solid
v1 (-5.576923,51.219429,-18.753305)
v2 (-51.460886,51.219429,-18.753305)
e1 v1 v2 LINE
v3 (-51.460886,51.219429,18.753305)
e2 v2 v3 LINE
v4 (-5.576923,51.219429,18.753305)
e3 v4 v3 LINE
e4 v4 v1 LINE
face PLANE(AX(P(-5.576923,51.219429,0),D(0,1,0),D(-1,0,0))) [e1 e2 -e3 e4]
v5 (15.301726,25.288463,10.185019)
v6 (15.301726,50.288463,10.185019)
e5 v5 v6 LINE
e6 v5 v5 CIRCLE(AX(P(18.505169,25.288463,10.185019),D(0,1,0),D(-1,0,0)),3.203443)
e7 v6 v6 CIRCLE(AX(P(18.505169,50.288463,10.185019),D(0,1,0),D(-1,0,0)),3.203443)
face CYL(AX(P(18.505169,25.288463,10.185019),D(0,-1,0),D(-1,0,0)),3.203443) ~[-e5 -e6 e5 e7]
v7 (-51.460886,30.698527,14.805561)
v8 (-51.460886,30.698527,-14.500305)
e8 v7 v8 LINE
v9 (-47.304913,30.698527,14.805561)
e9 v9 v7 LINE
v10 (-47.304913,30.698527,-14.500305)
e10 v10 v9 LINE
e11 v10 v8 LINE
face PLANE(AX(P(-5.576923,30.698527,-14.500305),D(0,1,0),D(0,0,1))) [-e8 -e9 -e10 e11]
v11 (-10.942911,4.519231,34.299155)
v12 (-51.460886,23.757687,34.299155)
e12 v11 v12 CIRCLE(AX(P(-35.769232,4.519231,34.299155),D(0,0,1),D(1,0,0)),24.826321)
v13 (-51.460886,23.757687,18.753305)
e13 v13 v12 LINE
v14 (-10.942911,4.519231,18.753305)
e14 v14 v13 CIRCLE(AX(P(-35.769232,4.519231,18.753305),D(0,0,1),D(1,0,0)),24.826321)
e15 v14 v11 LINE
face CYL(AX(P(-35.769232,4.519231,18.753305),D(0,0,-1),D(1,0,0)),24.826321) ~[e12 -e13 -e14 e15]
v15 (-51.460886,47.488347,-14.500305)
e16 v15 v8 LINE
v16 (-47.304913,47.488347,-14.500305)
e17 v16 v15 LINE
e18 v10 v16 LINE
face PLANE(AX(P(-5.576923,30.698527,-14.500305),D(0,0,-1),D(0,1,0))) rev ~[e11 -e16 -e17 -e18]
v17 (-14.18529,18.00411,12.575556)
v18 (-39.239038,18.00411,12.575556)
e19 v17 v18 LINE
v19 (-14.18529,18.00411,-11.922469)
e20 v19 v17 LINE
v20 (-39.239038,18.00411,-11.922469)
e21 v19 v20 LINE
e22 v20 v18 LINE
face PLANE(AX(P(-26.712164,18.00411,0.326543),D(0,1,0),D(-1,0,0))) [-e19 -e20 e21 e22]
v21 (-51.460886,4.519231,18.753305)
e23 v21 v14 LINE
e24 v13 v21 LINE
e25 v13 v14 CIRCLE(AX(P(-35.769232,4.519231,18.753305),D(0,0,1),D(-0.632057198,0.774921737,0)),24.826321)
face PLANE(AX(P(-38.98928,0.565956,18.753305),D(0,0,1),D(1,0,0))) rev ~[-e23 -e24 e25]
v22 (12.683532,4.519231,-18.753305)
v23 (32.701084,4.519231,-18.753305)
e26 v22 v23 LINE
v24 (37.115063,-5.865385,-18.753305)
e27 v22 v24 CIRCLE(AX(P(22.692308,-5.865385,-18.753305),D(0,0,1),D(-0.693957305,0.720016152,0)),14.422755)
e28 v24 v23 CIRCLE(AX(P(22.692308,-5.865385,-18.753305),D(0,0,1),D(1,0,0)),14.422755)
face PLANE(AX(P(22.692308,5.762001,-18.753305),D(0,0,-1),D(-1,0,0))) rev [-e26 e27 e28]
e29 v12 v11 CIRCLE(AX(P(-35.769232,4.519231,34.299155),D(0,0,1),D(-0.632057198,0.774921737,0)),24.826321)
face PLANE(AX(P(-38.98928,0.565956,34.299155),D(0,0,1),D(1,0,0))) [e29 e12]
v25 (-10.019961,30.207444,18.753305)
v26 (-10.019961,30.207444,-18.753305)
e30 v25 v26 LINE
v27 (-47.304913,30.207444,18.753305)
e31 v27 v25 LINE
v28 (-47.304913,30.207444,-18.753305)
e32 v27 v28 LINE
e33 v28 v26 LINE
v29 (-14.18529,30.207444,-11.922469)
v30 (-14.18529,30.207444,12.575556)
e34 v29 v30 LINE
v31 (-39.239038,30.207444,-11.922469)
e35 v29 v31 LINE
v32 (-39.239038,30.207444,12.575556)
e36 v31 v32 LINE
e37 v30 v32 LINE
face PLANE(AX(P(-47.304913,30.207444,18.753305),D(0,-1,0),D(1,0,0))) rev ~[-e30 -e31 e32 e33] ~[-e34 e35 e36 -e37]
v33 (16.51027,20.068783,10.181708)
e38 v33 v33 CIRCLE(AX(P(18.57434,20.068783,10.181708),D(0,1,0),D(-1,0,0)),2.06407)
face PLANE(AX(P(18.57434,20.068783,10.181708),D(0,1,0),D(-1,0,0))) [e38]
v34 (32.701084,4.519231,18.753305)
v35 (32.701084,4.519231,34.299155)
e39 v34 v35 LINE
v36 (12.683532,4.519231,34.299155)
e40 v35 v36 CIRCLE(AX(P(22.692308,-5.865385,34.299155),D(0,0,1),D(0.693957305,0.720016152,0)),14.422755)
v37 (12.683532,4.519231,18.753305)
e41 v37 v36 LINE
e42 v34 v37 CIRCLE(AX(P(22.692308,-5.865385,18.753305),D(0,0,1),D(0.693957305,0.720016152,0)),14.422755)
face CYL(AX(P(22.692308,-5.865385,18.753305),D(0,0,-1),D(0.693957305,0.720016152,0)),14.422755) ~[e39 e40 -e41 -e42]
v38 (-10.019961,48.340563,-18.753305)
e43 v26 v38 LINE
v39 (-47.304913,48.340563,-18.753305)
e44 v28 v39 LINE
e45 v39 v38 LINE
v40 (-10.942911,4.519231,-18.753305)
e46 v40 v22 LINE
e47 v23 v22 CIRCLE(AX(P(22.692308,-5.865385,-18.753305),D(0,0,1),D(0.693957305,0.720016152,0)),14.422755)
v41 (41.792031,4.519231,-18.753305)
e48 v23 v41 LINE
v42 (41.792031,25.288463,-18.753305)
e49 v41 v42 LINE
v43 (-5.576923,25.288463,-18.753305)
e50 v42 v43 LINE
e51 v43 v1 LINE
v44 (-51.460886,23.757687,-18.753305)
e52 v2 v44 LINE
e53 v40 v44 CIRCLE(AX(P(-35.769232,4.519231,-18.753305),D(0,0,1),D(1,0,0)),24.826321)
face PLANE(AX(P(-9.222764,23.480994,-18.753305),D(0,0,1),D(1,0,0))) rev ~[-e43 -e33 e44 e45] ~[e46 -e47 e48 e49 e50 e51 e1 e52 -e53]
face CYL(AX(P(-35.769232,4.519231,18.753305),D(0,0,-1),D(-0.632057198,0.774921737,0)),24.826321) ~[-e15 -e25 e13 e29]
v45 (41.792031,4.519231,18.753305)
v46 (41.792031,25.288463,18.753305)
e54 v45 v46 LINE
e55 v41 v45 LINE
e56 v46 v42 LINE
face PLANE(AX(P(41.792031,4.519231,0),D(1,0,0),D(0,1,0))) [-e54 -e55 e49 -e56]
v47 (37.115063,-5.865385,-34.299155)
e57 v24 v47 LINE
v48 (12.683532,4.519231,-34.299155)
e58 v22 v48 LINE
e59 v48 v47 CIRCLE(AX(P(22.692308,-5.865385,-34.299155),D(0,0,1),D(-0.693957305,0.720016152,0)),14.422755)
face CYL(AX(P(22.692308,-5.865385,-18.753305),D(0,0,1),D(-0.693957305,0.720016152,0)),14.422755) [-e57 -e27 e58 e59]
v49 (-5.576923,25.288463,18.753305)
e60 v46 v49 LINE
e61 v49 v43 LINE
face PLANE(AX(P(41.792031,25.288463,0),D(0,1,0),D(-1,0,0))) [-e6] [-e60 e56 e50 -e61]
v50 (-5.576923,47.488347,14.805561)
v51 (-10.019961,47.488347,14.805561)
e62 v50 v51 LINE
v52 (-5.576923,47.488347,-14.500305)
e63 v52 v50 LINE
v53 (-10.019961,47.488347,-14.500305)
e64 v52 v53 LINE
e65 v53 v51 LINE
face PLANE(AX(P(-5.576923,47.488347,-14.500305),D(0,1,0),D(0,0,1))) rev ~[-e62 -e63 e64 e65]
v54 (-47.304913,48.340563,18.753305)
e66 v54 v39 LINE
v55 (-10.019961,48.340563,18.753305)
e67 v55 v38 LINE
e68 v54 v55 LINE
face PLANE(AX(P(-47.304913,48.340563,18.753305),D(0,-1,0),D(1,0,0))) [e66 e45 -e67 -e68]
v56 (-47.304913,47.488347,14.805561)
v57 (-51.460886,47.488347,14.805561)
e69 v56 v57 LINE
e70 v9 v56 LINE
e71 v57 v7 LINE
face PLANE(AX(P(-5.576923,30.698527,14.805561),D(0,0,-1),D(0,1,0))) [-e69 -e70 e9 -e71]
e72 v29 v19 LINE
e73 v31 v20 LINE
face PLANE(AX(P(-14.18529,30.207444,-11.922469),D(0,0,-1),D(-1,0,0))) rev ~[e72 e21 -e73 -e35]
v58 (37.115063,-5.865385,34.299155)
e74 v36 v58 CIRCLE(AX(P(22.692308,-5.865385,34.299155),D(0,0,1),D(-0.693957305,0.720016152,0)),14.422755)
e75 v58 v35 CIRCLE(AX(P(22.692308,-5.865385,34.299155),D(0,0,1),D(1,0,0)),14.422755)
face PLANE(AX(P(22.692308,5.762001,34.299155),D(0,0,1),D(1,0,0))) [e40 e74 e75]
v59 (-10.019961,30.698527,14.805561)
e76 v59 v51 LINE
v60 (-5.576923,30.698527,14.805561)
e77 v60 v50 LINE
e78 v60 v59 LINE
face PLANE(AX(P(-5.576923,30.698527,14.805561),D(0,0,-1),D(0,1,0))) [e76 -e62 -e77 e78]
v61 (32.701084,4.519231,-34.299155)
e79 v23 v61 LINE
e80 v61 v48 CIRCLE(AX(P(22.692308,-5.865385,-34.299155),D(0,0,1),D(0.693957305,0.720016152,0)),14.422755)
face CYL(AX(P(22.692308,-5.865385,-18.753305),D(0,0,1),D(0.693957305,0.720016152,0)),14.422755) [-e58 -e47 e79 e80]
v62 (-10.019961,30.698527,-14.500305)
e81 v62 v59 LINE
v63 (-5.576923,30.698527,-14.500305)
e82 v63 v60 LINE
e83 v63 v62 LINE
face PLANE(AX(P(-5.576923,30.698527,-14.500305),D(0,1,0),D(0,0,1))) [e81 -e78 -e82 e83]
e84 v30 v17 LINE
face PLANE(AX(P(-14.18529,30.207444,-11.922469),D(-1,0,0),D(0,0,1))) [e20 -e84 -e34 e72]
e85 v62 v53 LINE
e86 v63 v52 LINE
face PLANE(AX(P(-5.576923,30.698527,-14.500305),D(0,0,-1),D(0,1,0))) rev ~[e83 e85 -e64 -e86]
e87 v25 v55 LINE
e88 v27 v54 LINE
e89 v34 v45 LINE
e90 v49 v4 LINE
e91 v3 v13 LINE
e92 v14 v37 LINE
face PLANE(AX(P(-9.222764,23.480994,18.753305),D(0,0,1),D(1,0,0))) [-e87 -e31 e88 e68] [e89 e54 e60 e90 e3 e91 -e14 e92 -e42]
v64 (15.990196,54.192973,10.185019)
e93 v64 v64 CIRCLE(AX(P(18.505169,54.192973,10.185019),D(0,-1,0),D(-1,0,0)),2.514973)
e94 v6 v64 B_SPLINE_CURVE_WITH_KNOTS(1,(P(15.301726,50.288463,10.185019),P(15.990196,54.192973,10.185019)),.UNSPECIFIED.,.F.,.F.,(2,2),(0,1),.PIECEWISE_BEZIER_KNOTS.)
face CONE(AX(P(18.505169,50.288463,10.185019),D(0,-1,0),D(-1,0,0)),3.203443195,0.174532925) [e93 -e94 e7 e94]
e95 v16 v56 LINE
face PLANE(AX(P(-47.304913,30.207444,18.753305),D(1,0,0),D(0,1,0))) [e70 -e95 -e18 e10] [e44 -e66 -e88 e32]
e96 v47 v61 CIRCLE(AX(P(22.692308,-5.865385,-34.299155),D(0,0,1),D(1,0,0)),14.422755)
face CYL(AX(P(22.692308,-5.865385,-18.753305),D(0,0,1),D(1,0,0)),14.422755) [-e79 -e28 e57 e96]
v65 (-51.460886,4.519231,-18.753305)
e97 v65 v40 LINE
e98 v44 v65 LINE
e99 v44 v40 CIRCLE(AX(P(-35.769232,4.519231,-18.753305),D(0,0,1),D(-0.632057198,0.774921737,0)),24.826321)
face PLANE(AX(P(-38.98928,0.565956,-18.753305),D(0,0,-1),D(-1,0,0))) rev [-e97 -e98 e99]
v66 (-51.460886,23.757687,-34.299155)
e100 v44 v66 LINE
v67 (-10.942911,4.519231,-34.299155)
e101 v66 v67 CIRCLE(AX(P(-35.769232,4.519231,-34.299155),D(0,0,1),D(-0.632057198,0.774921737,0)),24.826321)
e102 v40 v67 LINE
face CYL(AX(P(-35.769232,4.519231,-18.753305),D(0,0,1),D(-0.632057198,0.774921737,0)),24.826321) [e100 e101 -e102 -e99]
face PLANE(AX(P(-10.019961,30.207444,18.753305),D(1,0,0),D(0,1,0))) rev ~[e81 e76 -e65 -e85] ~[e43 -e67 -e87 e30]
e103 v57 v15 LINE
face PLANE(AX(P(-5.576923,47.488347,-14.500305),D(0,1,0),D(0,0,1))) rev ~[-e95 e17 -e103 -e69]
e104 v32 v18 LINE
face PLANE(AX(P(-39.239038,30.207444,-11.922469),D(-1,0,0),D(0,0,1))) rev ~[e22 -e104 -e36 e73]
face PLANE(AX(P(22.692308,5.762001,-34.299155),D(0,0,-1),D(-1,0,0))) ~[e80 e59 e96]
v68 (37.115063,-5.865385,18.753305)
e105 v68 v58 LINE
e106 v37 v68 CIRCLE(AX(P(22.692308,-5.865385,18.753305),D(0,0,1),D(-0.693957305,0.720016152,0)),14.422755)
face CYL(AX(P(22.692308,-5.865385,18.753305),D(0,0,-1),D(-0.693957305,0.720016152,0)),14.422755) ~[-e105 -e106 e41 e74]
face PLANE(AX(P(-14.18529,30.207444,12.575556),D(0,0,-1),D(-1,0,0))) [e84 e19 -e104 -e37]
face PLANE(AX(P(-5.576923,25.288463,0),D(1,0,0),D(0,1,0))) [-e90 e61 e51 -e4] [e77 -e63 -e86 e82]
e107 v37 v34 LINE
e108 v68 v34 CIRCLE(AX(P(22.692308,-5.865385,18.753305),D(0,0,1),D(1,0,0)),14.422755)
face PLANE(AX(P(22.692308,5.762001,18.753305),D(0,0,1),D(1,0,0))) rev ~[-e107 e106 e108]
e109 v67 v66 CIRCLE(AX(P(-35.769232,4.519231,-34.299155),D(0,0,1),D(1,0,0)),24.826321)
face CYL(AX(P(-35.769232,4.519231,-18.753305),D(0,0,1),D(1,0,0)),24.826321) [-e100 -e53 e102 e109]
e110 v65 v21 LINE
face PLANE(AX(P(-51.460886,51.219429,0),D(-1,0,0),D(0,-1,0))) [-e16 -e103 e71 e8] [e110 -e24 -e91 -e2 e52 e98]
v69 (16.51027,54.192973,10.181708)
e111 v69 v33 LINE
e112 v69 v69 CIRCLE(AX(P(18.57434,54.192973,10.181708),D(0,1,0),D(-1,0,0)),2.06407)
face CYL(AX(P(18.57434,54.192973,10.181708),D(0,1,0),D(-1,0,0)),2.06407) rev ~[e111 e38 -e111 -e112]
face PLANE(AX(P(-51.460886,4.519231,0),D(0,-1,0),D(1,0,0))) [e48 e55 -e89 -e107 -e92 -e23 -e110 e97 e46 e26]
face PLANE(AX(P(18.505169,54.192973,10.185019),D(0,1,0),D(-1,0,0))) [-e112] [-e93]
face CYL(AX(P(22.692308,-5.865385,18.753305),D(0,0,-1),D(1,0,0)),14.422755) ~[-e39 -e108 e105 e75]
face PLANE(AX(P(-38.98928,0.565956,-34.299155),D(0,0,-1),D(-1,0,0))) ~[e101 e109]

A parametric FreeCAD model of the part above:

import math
import FreeCAD as App
import Part
import Sketcher
from FreeCAD import Vector
Q = App.Units.Quantity


def add_polygon(sketch, points):
    """Adds a closed chain of lines whose ends are joined by coincident constraints."""
    first, n = sketch.GeometryCount, len(points)
    for a, b in zip(points, points[1:] + points[:1]):
        sketch.addGeometry(Part.LineSegment(App.Vector(*a, 0), App.Vector(*b, 0)), False)
    for i in range(n):
        sketch.addConstraint(Sketcher.Constraint("Coincident", first + i, 2, first + (i + 1) % n, 1))

doc = App.newDocument("Part")
params = doc.addObject("Spreadsheet::Sheet", "Params")
for row, (alias, value) in enumerate([
    ("pad1_length", "37.50661 mm"),
    ("pad2_length", "15.54585 mm"),
    ("pad3_length", "25 mm"),
    ("pad4_length", "3.90451 mm"),
    ("pad4_taper", "-10 deg"),
    ("pocket3_length", "12.203334 mm"),
    ("pocket4_length", "34.12419 mm"),
], start=1):
    params.set(f"A{row}", alias)
    params.set(f"B{row}", "=" + value)
    params.setAlias(f"B{row}", alias)

body = doc.addObject("PartDesign::Body", "Body")

# Sketch on XY plane
sketch1 = doc.addObject("Sketcher::SketchObject", "Sketch")
body.addObject(sketch1)
sketch1.AttachmentSupport = (doc.XY_Plane, [""])
sketch1.MapMode = "FlatFace"
add_polygon(sketch1, [(-6, 51), (-51, 51), (-51, 5), (42, 5), (42, 25), (-6, 25)])  # lines 0-5
sketch1.addConstraint([
    Sketcher.Constraint("Horizontal", 0),
    Sketcher.Constraint("Vertical", 1),
    Sketcher.Constraint("Horizontal", 2),
    Sketcher.Constraint("Vertical", 3),
    Sketcher.Constraint("Horizontal", 4),
    Sketcher.Constraint("Vertical", 5),
    Sketcher.Constraint("DistanceY", 1, 2, 1, 1, Q("46.700198 mm")),
    Sketcher.Constraint("DistanceY", 3, 1, 3, 2, Q("20.769231 mm")),
    Sketcher.Constraint("DistanceX", 0, 2, 0, 1, Q("45.883963 mm")),
    Sketcher.Constraint("DistanceX", 2, 1, 2, 2, Q("93.252918 mm")),
    Sketcher.Constraint("DistanceY", -1, 1, 0, 2, Q("51.219429 mm")),
    Sketcher.Constraint("DistanceX", -1, 1, 2, 2, Q("41.792031 mm")),
])
pad1 = doc.addObject("PartDesign::Pad", "Pad")
body.addObject(pad1)
pad1.Profile = sketch1
pad1.setExpression("Length", "Params.pad1_length")
pad1.Midplane = True

# Sketch on XY plane
sketch2 = doc.addObject("Sketcher::SketchObject", "Sketch001")
body.addObject(sketch2)
sketch2.AttachmentSupport = (doc.XY_Plane, [""])
sketch2.MapMode = "FlatFace"
sketch2.AttachmentOffset = App.Placement(Vector(0, 0, 18.753305), App.Rotation())
sketch2.addGeometry([
    Part.ArcOfCircle(Part.Circle(Vector(-36, 5, 0), Vector(0, 0, 1), 25), math.radians(129), math.radians(360)),  # 0
    Part.ArcOfCircle(Part.Circle(Vector(-36, 5, 0), Vector(0, 0, 1), 25), math.radians(0), math.radians(129)),  # 1
    Part.ArcOfCircle(Part.Circle(Vector(23, -6, 0), Vector(0, 0, 1), 14), math.radians(46), math.radians(134)),  # 2
    Part.ArcOfCircle(Part.Circle(Vector(23, -6, 0), Vector(0, 0, 1), 14), math.radians(134), math.radians(360)),  # 3
    Part.ArcOfCircle(Part.Circle(Vector(23, -6, 0), Vector(0, 0, 1), 14), math.radians(0), math.radians(46)),  # 4
], False)
sketch2.addConstraint([
    Sketcher.Constraint("Tangent", 0, 1, 1, 2),
    Sketcher.Constraint("Coincident", 1, 1, 0, 2),
    Sketcher.Constraint("Tangent", 2, 2, 3, 1),
    Sketcher.Constraint("Tangent", 3, 2, 4, 1),
    Sketcher.Constraint("Tangent", 4, 2, 2, 1),
    Sketcher.Constraint("Horizontal", 0, 3, 1, 1),
    Sketcher.Constraint("Horizontal", 1, 1, 2, 2),
    Sketcher.Constraint("Horizontal", 4, 3, 3, 2),
    Sketcher.Constraint("Horizontal", 2, 2, 4, 2),
    Sketcher.Constraint("Radius", 0, Q("24.826321 mm")),
    Sketcher.Constraint("Radius", 2, Q("14.422755 mm")),
    Sketcher.Constraint("DistanceX", 0, 3, -1, 1, Q("35.769232 mm")),
    Sketcher.Constraint("DistanceY", -1, 1, 0, 3, Q("4.519231 mm")),
    Sketcher.Constraint("DistanceX", -1, 1, 2, 2, Q("12.683532 mm")),
    Sketcher.Constraint("DistanceX", 0, 3, 2, 3, Q("58.461539 mm")),
    Sketcher.Constraint("DistanceX", 0, 1, -1, 1, Q("51.460886 mm")),
])
pad2 = doc.addObject("PartDesign::Pad", "Pad001")
body.addObject(pad2)
pad2.Profile = sketch2
pad2.setExpression("Length", "Params.pad2_length")
body2 = doc.addObject("PartDesign::Body", "Body001")
doc.recompute()

body2.BaseFeature = body
doc.recompute()

mirroring = doc.addObject("Part::Mirroring", "Mirroring")
mirroring.Source = body
mirroring.Base = Vector(0, 0, 0)
mirroring.Normal = Vector(0, 0, 1)
body3 = doc.addObject("PartDesign::Body", "Body002")
body3.BaseFeature = mirroring
boolean = doc.addObject("PartDesign::Boolean", "Boolean")
body2.addObject(boolean)
boolean.Type = "Fuse"
boolean.addObjects([body3])
doc.recompute()

# Sketch on XY plane
sketch3 = doc.addObject("Sketcher::SketchObject", "Sketch002")
body2.addObject(sketch3)
sketch3.AttachmentSupport = (doc.getObject("XY_Plane001"), [""])
sketch3.MapMode = "FlatFace"
sketch3.AttachmentOffset = App.Placement(Vector(0, 0, 18.753305), App.Rotation())
add_polygon(sketch3, [(-47, 48), (-47, 30), (-10, 30), (-10, 48)])  # lines 0-3
sketch3.addConstraint([
    Sketcher.Constraint("Vertical", 0),
    Sketcher.Constraint("Horizontal", 1),
    Sketcher.Constraint("Vertical", 2),
    Sketcher.Constraint("Horizontal", 3),
    Sketcher.Constraint("DistanceY", 0, 2, 0, 1, Q("18.133119 mm")),
    Sketcher.Constraint("DistanceX", 1, 1, 1, 2, Q("37.284953 mm")),
    Sketcher.Constraint("DistanceX", 1, 2, -1, 1, Q("10.019961 mm")),
    Sketcher.Constraint("DistanceY", -1, 1, 0, 2, Q("30.207444 mm")),
])
pocket1 = doc.addObject("PartDesign::Pocket", "Pocket")
body2.addObject(pocket1)
pocket1.Profile = sketch3
pocket1.Type = "ThroughAll"

# Sketch on YZ plane
sketch4 = doc.addObject("Sketcher::SketchObject", "Sketch003")
body2.addObject(sketch4)
sketch4.AttachmentSupport = (doc.getObject("YZ_Plane001"), [""])
sketch4.MapMode = "FlatFace"
sketch4.AttachmentOffset = App.Placement(Vector(0, 0, -5.576923), App.Rotation())
add_polygon(sketch4, [(31, 15), (31, -15), (47, -15), (47, 15)])  # lines 0-3
sketch4.addConstraint([
    Sketcher.Constraint("Vertical", 0),
    Sketcher.Constraint("Horizontal", 1),
    Sketcher.Constraint("Vertical", 2),
    Sketcher.Constraint("Horizontal", 3),
    Sketcher.Constraint("DistanceX", 1, 1, 1, 2, Q("16.78982 mm")),
    Sketcher.Constraint("DistanceY", 0, 2, 0, 1, Q("29.305866 mm")),
    Sketcher.Constraint("DistanceY", -1, 1, 2, 2, Q("14.805561 mm")),
    Sketcher.Constraint("DistanceX", -1, 1, 0, 2, Q("30.698527 mm")),
])
pocket2 = doc.addObject("PartDesign::Pocket", "Pocket001")
body2.addObject(pocket2)
pocket2.Profile = sketch4
pocket2.Type = "ThroughAll"

# Sketch on XZ plane
sketch5 = doc.addObject("Sketcher::SketchObject", "Sketch004")
body2.addObject(sketch5)
sketch5.AttachmentSupport = (doc.getObject("XZ_Plane001"), [""])
sketch5.MapMode = "FlatFace"
sketch5.AttachmentOffset = App.Placement(Vector(0, 0, -25.288463), App.Rotation())
sketch5.addGeometry(Part.Circle(Vector(18.5, 10.2, 0), Vector(0, 0, 1), 3.2), False)
sketch5.addConstraint([
    Sketcher.Constraint("Diameter", 0, Q("6.406886 mm")),
    Sketcher.Constraint("DistanceX", -1, 1, 0, 3, Q("18.505169 mm")),
    Sketcher.Constraint("DistanceY", -1, 1, 0, 3, Q("10.185019 mm")),
])
pad3 = doc.addObject("PartDesign::Pad", "Pad002")
body2.addObject(pad3)
pad3.Profile = sketch5
pad3.setExpression("Length", "Params.pad3_length")
pad3.Reversed = True

# Sketch on XZ plane
sketch6 = doc.addObject("Sketcher::SketchObject", "Sketch005")
body2.addObject(sketch6)
sketch6.AttachmentSupport = (doc.getObject("XZ_Plane001"), [""])
sketch6.MapMode = "FlatFace"
sketch6.AttachmentOffset = App.Placement(Vector(0, 0, -50.288463), App.Rotation())
sketch6.addGeometry(Part.Circle(Vector(18.5, 10.2, 0), Vector(0, 0, 1), 3.2), False)
sketch6.addConstraint([
    Sketcher.Constraint("Diameter", 0, Q("6.406886 mm")),
    Sketcher.Constraint("DistanceX", -1, 1, 0, 3, Q("18.505169 mm")),
    Sketcher.Constraint("DistanceY", -1, 1, 0, 3, Q("10.185019 mm")),
])
pad4 = doc.addObject("PartDesign::Pad", "Pad003")
body2.addObject(pad4)
pad4.Profile = sketch6
pad4.setExpression("Length", "Params.pad4_length")
pad4.Reversed = True
pad4.setExpression("TaperAngle", "Params.pad4_taper")

# Sketch on XZ plane
sketch7 = doc.addObject("Sketcher::SketchObject", "Sketch006")
body2.addObject(sketch7)
sketch7.AttachmentSupport = (doc.getObject("XZ_Plane001"), [""])
sketch7.MapMode = "FlatFace"
sketch7.AttachmentOffset = App.Placement(Vector(0, 0, -30.207444), App.Rotation())
add_polygon(sketch7, [(-14, 13), (-14, -12), (-39, -12), (-39, 13)])  # lines 0-3
sketch7.addConstraint([
    Sketcher.Constraint("Vertical", 0),
    Sketcher.Constraint("Horizontal", 1),
    Sketcher.Constraint("Vertical", 2),
    Sketcher.Constraint("Horizontal", 3),
    Sketcher.Constraint("DistanceX", 1, 2, 1, 1, Q("25.053748 mm")),
    Sketcher.Constraint("DistanceY", 0, 2, 0, 1, Q("24.498025 mm")),
    Sketcher.Constraint("DistanceX", 0, 2, -1, 1, Q("14.18529 mm")),
    Sketcher.Constraint("DistanceY", 0, 2, -1, 1, Q("11.922469 mm")),
])
pocket3 = doc.addObject("PartDesign::Pocket", "Pocket002")
body2.addObject(pocket3)
pocket3.Profile = sketch7
pocket3.setExpression("Length", "Params.pocket3_length")
pocket3.Reversed = True

# Sketch on XZ plane
sketch8 = doc.addObject("Sketcher::SketchObject", "Sketch007")
body2.addObject(sketch8)
sketch8.AttachmentSupport = (doc.getObject("XZ_Plane001"), [""])
sketch8.MapMode = "FlatFace"
sketch8.AttachmentOffset = App.Placement(Vector(0, 0, -54.192973), App.Rotation())
sketch8.addGeometry(Part.Circle(Vector(18.6, 10.2, 0), Vector(0, 0, 1), 2.1), False)
sketch8.addConstraint([
    Sketcher.Constraint("Diameter", 0, Q("4.128141 mm")),
    Sketcher.Constraint("DistanceX", -1, 1, 0, 3, Q("18.57434 mm")),
    Sketcher.Constraint("DistanceY", -1, 1, 0, 3, Q("10.181708 mm")),
])
pocket4 = doc.addObject("PartDesign::Pocket", "Pocket003")
body2.addObject(pocket4)
pocket4.Profile = sketch8
pocket4.setExpression("Length", "Params.pocket4_length")
pocket4.Reversed = True
mirroring.Visibility = False

doc.recompute()
